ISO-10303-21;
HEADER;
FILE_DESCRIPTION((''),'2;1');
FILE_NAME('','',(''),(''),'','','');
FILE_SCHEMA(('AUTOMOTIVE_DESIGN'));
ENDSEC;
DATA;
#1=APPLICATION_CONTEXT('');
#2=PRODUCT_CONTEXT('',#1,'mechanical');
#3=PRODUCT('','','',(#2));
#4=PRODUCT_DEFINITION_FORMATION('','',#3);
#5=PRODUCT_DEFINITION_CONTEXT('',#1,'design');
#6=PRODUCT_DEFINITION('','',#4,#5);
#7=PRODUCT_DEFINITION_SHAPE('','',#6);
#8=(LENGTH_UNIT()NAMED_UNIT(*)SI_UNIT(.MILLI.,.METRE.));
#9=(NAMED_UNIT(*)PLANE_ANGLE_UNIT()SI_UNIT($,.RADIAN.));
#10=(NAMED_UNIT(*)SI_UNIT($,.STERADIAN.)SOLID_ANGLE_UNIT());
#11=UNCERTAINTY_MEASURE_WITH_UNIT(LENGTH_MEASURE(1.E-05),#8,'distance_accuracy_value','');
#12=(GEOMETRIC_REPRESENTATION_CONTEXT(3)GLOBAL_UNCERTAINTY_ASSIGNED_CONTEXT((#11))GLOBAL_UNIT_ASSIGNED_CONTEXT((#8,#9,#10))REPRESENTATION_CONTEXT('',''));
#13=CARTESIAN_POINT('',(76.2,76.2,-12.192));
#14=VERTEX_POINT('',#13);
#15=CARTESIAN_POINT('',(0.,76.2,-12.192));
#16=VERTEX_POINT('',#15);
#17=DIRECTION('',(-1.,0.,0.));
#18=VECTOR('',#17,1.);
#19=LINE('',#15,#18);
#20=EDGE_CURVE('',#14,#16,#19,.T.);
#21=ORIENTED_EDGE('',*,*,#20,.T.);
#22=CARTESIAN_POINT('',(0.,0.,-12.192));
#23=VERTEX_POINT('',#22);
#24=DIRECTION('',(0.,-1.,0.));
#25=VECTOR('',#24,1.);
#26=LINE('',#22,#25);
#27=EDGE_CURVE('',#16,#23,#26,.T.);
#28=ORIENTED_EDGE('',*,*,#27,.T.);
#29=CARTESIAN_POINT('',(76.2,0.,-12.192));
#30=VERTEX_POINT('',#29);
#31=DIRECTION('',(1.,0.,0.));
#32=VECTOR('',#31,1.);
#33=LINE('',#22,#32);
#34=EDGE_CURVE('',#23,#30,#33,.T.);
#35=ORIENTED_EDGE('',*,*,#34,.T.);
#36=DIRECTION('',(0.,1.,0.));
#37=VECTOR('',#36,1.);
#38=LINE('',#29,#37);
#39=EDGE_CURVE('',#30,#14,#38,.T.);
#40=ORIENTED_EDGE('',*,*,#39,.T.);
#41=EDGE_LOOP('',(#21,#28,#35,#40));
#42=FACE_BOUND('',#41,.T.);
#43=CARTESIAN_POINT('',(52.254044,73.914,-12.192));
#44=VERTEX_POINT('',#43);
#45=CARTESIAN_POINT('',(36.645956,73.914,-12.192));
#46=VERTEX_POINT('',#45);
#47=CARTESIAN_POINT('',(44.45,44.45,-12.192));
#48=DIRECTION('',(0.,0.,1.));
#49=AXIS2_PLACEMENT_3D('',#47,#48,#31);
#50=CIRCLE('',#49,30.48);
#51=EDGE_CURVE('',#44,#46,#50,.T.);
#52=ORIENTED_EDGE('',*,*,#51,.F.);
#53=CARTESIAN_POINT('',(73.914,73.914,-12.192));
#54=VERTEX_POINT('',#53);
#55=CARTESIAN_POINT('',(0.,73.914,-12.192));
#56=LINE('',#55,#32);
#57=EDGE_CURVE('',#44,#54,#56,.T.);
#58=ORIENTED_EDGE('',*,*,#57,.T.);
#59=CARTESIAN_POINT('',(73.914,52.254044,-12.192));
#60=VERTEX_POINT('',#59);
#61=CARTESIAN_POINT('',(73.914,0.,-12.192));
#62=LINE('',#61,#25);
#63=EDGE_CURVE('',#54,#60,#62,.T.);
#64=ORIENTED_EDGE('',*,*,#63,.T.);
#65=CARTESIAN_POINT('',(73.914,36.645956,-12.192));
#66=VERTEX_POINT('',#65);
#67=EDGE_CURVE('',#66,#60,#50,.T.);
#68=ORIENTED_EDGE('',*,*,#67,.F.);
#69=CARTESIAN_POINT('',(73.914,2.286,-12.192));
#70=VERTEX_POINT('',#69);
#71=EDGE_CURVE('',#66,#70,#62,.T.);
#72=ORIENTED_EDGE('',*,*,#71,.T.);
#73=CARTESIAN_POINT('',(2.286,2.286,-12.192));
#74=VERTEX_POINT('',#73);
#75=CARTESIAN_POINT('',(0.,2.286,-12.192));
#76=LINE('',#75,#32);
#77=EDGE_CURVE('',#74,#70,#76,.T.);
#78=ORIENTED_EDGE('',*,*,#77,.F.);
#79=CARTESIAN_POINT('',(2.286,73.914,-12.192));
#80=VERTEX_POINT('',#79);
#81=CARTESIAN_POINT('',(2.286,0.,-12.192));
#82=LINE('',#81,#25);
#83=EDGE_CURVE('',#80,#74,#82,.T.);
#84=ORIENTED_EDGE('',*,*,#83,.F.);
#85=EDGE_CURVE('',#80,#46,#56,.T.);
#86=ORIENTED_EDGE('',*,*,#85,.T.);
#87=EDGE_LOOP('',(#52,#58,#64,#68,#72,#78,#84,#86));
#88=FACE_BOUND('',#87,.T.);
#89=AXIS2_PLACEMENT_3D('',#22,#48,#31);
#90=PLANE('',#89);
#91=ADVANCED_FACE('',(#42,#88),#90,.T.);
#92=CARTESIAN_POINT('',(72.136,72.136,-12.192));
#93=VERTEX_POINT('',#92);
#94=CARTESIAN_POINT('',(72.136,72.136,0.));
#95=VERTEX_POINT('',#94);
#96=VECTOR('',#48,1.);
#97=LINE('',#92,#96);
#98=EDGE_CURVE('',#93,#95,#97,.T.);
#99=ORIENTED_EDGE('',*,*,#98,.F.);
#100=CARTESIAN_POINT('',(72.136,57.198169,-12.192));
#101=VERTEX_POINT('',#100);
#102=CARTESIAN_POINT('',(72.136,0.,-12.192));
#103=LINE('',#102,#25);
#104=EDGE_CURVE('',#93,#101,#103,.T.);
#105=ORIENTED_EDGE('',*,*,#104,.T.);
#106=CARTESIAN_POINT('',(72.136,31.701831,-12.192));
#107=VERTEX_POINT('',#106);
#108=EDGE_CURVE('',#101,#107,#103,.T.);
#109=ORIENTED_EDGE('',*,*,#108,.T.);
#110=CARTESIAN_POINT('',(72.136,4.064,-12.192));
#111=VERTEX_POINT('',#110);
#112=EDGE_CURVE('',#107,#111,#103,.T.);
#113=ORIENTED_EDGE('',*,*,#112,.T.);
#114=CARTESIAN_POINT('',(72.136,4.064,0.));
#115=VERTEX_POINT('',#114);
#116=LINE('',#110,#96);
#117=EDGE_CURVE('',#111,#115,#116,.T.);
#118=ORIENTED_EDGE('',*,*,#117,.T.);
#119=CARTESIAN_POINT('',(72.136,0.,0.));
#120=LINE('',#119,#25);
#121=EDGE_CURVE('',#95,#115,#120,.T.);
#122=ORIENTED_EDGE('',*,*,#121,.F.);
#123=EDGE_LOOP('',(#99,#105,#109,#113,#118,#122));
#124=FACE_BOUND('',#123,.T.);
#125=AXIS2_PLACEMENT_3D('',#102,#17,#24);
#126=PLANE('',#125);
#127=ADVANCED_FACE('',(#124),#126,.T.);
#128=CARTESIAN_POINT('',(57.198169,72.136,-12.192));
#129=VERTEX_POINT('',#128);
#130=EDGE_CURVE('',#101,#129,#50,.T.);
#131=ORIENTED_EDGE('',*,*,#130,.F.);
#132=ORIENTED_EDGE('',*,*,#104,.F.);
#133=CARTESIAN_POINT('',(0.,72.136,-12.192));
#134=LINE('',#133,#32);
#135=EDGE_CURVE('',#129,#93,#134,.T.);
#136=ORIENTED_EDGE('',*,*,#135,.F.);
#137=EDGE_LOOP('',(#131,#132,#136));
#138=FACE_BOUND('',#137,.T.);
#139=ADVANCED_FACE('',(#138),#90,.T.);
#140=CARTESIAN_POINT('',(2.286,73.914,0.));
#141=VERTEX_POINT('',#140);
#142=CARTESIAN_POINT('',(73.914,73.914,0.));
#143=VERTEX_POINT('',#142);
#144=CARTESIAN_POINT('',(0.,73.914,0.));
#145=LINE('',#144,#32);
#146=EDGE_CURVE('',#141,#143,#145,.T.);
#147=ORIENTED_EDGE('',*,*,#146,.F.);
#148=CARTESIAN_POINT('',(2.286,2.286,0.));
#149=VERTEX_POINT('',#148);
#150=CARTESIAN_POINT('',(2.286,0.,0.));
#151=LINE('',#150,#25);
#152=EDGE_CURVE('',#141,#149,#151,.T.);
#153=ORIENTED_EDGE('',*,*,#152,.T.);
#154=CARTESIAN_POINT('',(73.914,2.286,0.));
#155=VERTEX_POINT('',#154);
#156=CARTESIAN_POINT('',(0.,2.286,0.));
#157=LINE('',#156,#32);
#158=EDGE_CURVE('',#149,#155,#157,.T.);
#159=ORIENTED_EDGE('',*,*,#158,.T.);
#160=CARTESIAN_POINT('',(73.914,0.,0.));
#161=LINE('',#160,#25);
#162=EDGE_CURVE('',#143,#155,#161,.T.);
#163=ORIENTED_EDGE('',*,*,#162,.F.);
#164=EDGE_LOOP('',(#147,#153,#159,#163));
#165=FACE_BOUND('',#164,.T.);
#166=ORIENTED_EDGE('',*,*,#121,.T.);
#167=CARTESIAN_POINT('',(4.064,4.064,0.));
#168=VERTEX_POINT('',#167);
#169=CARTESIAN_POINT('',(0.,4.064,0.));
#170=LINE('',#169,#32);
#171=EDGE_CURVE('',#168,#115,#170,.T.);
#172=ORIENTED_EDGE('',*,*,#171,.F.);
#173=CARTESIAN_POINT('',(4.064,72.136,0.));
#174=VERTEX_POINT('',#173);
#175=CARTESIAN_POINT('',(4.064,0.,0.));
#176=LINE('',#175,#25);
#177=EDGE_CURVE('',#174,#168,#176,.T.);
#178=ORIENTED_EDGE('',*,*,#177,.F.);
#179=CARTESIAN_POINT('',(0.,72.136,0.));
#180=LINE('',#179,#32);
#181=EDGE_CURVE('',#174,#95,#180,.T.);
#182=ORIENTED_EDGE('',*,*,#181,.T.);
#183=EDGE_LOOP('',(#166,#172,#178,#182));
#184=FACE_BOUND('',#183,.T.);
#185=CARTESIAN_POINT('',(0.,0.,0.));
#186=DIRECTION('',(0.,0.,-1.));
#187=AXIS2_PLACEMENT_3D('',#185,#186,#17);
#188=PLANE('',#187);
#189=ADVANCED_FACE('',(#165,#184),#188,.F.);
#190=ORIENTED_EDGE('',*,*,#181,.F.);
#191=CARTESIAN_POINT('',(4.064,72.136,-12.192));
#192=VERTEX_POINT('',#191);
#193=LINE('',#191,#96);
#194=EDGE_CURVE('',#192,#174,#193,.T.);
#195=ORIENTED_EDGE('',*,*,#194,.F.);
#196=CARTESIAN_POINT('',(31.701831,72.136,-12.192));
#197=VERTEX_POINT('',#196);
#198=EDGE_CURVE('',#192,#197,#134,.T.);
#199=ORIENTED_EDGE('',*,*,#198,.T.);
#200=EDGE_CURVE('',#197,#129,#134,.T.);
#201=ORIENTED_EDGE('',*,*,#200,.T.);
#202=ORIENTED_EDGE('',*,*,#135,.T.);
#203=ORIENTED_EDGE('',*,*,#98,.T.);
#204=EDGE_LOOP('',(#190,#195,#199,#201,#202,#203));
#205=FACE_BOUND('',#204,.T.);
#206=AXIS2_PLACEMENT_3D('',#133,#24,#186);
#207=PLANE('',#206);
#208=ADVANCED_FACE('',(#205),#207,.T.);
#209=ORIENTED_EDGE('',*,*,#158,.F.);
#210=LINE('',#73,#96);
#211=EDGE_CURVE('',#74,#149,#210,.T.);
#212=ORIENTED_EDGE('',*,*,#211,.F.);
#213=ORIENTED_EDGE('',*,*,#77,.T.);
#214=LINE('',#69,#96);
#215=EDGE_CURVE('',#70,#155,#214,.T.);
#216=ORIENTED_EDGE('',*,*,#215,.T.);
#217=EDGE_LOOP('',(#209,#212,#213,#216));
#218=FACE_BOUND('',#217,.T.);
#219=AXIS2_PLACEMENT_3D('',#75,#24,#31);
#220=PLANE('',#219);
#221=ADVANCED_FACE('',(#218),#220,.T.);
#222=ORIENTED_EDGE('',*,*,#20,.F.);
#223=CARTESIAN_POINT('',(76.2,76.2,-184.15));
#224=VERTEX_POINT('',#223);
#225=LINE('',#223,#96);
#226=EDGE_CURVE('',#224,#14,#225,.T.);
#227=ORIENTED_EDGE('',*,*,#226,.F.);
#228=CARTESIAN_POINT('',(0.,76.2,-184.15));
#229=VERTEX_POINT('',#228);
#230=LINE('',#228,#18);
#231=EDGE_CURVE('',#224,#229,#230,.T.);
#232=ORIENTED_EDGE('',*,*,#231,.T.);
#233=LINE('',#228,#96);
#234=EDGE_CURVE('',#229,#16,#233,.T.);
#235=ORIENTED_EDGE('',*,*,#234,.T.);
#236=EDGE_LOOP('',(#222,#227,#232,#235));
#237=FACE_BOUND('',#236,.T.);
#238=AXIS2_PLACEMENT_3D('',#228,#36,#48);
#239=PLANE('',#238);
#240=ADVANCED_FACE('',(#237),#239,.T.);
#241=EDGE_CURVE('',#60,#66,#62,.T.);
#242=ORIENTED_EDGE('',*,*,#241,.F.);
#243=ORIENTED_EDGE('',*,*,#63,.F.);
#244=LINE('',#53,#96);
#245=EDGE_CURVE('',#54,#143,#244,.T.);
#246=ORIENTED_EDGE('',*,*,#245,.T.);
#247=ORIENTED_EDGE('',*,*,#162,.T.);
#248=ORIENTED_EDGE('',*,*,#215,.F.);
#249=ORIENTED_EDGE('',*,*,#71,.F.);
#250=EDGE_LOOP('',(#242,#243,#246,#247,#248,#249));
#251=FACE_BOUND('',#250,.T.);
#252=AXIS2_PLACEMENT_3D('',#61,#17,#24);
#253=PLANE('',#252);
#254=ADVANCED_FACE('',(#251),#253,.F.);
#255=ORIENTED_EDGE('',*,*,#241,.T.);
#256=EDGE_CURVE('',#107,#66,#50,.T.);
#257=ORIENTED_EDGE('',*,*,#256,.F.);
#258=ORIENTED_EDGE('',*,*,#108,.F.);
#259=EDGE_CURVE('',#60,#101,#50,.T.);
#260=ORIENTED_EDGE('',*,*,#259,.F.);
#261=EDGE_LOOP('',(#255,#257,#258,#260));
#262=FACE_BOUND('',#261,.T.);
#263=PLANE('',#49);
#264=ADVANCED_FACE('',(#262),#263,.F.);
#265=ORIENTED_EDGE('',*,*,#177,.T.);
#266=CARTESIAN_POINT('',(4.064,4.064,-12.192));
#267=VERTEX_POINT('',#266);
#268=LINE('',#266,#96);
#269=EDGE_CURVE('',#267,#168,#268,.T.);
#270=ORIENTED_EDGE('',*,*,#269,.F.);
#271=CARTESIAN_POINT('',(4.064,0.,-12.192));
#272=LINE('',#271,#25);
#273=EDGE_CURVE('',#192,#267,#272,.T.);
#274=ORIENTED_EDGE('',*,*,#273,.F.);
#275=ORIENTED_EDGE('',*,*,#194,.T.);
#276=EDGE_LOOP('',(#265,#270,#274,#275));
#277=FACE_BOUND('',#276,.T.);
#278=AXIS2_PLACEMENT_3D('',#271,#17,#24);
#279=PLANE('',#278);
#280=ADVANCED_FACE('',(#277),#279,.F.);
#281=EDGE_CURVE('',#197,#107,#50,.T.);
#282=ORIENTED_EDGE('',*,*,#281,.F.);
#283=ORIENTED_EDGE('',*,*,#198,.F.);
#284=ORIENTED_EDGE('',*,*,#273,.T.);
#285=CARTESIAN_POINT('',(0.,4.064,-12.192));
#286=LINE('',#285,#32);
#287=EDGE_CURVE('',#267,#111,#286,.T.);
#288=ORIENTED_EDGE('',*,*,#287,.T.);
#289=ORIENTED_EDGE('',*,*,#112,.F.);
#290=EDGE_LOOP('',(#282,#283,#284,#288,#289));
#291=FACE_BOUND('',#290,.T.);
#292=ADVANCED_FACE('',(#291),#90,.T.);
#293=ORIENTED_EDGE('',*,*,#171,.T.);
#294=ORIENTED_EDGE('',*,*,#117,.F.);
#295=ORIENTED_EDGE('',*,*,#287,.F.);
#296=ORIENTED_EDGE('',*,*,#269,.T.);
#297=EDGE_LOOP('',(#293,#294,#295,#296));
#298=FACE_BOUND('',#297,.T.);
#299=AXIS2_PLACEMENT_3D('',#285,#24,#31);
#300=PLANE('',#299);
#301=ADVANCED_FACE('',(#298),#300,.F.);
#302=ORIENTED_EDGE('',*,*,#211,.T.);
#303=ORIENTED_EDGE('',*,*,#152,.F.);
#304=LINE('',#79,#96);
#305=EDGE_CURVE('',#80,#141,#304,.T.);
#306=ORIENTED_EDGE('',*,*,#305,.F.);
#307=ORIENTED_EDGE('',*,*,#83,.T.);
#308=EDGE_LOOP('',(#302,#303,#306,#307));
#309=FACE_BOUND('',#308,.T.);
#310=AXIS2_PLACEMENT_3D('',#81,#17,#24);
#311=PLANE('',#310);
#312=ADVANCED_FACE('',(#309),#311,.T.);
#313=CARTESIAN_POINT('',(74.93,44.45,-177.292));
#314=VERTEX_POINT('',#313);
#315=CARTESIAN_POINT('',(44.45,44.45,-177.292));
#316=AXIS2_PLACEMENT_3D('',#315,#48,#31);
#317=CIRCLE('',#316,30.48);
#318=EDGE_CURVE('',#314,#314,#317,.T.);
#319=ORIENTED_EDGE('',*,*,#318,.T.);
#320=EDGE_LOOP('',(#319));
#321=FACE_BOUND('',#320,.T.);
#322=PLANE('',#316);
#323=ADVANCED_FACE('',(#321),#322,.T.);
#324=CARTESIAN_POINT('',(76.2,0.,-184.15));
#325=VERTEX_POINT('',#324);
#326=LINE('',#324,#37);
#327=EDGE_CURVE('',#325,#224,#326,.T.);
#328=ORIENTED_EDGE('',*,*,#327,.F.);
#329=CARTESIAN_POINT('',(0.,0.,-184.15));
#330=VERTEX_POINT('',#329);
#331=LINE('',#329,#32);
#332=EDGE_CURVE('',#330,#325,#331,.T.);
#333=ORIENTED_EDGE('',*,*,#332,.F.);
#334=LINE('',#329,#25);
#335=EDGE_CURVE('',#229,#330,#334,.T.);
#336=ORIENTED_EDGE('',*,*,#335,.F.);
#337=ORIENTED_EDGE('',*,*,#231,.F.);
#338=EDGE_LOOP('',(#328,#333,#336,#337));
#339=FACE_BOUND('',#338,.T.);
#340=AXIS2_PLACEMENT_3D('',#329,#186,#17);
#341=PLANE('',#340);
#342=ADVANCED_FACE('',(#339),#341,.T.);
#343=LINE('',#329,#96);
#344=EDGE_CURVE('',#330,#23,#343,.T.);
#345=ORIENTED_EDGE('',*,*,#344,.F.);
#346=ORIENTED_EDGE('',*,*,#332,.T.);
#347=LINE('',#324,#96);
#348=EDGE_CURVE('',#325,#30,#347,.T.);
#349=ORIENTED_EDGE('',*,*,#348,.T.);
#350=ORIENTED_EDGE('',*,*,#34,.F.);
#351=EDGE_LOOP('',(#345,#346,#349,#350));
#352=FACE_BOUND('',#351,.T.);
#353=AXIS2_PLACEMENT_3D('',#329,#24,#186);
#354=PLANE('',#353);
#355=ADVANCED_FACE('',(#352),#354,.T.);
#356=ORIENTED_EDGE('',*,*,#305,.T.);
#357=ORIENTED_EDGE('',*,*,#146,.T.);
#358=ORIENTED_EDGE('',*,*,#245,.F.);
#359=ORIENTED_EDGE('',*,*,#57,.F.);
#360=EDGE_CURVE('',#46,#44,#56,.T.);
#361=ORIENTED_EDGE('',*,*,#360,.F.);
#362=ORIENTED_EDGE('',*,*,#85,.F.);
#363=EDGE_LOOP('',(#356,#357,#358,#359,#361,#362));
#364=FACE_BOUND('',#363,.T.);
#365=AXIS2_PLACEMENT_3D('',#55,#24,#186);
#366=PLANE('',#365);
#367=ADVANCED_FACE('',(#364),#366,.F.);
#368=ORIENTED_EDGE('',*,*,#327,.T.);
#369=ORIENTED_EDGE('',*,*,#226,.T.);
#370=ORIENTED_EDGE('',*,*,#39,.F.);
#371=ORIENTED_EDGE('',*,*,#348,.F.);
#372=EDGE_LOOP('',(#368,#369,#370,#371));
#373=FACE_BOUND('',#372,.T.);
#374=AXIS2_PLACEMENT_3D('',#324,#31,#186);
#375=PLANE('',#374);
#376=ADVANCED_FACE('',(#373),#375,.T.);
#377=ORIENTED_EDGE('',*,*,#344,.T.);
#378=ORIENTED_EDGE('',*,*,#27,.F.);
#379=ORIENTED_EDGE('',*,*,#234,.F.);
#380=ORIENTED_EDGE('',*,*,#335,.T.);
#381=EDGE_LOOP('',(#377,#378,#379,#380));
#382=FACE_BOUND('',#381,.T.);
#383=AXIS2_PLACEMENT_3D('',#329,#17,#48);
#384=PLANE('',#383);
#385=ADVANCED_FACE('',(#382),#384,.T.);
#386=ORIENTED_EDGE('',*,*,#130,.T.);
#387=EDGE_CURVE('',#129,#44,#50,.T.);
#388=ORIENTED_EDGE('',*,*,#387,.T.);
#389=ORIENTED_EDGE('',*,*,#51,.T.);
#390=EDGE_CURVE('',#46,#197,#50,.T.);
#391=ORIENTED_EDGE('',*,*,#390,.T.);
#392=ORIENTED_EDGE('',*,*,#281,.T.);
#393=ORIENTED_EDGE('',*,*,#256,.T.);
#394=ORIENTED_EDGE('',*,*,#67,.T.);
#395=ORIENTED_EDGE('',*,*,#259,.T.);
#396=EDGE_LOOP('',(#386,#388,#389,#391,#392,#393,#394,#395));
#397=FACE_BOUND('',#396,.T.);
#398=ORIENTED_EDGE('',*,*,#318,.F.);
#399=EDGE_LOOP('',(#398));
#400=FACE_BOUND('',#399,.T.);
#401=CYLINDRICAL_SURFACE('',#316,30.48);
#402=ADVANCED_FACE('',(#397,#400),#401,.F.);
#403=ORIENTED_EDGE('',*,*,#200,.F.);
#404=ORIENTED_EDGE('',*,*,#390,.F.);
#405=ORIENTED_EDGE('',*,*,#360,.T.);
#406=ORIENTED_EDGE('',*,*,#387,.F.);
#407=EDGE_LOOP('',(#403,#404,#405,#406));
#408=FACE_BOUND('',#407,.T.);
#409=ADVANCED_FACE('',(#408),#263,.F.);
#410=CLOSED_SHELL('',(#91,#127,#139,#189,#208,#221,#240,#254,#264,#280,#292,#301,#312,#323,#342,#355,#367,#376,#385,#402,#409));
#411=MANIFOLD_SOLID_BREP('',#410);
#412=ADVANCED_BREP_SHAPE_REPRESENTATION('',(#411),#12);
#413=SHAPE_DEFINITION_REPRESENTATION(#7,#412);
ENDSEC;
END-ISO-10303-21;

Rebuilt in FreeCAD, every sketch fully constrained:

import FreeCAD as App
import Part
import Sketcher
Q = App.Units.Quantity


def add_polygon(sketch, points):
    """Adds a closed chain of lines whose ends are joined by coincident constraints."""
    first, n = sketch.GeometryCount, len(points)
    for a, b in zip(points, points[1:] + points[:1]):
        sketch.addGeometry(Part.LineSegment(App.Vector(*a, 0), App.Vector(*b, 0)), False)
    for i in range(n):
        sketch.addConstraint(Sketcher.Constraint("Coincident", first + i, 2, first + (i + 1) % n, 1))

doc = App.newDocument("Part")
body = doc.addObject("PartDesign::Body", "Body")

sketch1 = body.newObject("Sketcher::SketchObject", "Sketch")
sketch1.AttachmentSupport = (doc.getObject("XY_Plane"), [""])
sketch1.MapMode = "FlatFace"
add_polygon(sketch1, [(0, 76), (0, 0), (76, 0), (76, 76)])
sketch1.addConstraint([
    Sketcher.Constraint("Vertical", 0),
    Sketcher.Constraint("Horizontal", 1),
    Sketcher.Constraint("Vertical", 2),
    Sketcher.Constraint("Horizontal", 3),
    Sketcher.Constraint("Coincident", 0, 2, -1, 1),
    Sketcher.Constraint("Equal", 3, 0),
    Sketcher.Constraint("DistanceX", 1, 1, 1, 2, Q("3 in")),
])
pad1 = body.newObject("PartDesign::Pad", "Pad")
pad1.Profile = sketch1
pad1.Length = Q("7.25 in")
pad1.Reversed = True

sketch2 = body.newObject("Sketcher::SketchObject", "Sketch001")
sketch2.AttachmentSupport = (doc.getObject("XY_Plane"), [""])
sketch2.MapMode = "FlatFace"
add_polygon(sketch2, [(0, 76), (0, 0), (76, 0), (76, 76)])
add_polygon(sketch2, [(74, 2), (2, 2), (2, 74), (74, 74)])
add_polygon(sketch2, [(4, 72), (4, 4), (72, 4), (72, 72)])
sketch2.addConstraint([
    Sketcher.Constraint("Vertical", 0),
    Sketcher.Constraint("Horizontal", 1),
    Sketcher.Constraint("Vertical", 2),
    Sketcher.Constraint("Horizontal", 3),
    Sketcher.Constraint("Horizontal", 4),
    Sketcher.Constraint("Vertical", 5),
    Sketcher.Constraint("Horizontal", 6),
    Sketcher.Constraint("Vertical", 7),
    Sketcher.Constraint("Vertical", 8),
    Sketcher.Constraint("Horizontal", 9),
    Sketcher.Constraint("Vertical", 10),
    Sketcher.Constraint("Horizontal", 11),
    Sketcher.Constraint("Coincident", 0, 2, -1, 1),
    Sketcher.Constraint("Equal", 3, 0),
    Sketcher.Constraint("Equal", 6, 5),
    Sketcher.Constraint("Equal", 11, 8),
    Sketcher.Constraint("DistanceX", 1, 1, 1, 2, Q("3 in")),
    Sketcher.Constraint("DistanceX", 4, 2, 4, 1, Q("2.82 in")),
    Sketcher.Constraint("DistanceX", 9, 1, 9, 2, Q("2.68 in")),
    Sketcher.Constraint("DistanceX", -1, 1, 4, 2, Q("0.09 in")),
    Sketcher.Constraint("DistanceY", -1, 1, 4, 2, Q("0.09 in")),
    Sketcher.Constraint("DistanceX", -1, 1, 8, 2, Q("0.16 in")),
    Sketcher.Constraint("DistanceY", -1, 1, 8, 2, Q("0.16 in")),
])
pocket1 = body.newObject("PartDesign::Pocket", "Pocket")
pocket1.Profile = sketch2
pocket1.Length = Q("0.48 in")

sketch3 = body.newObject("Sketcher::SketchObject", "Sketch002")
sketch3.AttachmentSupport = (doc.getObject("XY_Plane"), [""])
sketch3.MapMode = "FlatFace"
sketch3.AttachmentOffset = App.Placement(App.Vector(0, 0, -0.48 * 25.4), App.Rotation())
sketch3.addGeometry(Part.Circle(App.Vector(44, 44, 0), App.Vector(0, 0, 1), 30), False)
sketch3.addConstraint([
    Sketcher.Constraint("Diameter", 0, Q("2.4 in")),
    Sketcher.Constraint("DistanceX", -1, 1, 0, 3, Q("1.75 in")),
    Sketcher.Constraint("DistanceY", -1, 1, 0, 3, Q("1.75 in")),
])
pocket2 = body.newObject("PartDesign::Pocket", "Pocket001")
pocket2.Profile = sketch3
pocket2.Length = Q("6.5 in")

doc.recompute()
